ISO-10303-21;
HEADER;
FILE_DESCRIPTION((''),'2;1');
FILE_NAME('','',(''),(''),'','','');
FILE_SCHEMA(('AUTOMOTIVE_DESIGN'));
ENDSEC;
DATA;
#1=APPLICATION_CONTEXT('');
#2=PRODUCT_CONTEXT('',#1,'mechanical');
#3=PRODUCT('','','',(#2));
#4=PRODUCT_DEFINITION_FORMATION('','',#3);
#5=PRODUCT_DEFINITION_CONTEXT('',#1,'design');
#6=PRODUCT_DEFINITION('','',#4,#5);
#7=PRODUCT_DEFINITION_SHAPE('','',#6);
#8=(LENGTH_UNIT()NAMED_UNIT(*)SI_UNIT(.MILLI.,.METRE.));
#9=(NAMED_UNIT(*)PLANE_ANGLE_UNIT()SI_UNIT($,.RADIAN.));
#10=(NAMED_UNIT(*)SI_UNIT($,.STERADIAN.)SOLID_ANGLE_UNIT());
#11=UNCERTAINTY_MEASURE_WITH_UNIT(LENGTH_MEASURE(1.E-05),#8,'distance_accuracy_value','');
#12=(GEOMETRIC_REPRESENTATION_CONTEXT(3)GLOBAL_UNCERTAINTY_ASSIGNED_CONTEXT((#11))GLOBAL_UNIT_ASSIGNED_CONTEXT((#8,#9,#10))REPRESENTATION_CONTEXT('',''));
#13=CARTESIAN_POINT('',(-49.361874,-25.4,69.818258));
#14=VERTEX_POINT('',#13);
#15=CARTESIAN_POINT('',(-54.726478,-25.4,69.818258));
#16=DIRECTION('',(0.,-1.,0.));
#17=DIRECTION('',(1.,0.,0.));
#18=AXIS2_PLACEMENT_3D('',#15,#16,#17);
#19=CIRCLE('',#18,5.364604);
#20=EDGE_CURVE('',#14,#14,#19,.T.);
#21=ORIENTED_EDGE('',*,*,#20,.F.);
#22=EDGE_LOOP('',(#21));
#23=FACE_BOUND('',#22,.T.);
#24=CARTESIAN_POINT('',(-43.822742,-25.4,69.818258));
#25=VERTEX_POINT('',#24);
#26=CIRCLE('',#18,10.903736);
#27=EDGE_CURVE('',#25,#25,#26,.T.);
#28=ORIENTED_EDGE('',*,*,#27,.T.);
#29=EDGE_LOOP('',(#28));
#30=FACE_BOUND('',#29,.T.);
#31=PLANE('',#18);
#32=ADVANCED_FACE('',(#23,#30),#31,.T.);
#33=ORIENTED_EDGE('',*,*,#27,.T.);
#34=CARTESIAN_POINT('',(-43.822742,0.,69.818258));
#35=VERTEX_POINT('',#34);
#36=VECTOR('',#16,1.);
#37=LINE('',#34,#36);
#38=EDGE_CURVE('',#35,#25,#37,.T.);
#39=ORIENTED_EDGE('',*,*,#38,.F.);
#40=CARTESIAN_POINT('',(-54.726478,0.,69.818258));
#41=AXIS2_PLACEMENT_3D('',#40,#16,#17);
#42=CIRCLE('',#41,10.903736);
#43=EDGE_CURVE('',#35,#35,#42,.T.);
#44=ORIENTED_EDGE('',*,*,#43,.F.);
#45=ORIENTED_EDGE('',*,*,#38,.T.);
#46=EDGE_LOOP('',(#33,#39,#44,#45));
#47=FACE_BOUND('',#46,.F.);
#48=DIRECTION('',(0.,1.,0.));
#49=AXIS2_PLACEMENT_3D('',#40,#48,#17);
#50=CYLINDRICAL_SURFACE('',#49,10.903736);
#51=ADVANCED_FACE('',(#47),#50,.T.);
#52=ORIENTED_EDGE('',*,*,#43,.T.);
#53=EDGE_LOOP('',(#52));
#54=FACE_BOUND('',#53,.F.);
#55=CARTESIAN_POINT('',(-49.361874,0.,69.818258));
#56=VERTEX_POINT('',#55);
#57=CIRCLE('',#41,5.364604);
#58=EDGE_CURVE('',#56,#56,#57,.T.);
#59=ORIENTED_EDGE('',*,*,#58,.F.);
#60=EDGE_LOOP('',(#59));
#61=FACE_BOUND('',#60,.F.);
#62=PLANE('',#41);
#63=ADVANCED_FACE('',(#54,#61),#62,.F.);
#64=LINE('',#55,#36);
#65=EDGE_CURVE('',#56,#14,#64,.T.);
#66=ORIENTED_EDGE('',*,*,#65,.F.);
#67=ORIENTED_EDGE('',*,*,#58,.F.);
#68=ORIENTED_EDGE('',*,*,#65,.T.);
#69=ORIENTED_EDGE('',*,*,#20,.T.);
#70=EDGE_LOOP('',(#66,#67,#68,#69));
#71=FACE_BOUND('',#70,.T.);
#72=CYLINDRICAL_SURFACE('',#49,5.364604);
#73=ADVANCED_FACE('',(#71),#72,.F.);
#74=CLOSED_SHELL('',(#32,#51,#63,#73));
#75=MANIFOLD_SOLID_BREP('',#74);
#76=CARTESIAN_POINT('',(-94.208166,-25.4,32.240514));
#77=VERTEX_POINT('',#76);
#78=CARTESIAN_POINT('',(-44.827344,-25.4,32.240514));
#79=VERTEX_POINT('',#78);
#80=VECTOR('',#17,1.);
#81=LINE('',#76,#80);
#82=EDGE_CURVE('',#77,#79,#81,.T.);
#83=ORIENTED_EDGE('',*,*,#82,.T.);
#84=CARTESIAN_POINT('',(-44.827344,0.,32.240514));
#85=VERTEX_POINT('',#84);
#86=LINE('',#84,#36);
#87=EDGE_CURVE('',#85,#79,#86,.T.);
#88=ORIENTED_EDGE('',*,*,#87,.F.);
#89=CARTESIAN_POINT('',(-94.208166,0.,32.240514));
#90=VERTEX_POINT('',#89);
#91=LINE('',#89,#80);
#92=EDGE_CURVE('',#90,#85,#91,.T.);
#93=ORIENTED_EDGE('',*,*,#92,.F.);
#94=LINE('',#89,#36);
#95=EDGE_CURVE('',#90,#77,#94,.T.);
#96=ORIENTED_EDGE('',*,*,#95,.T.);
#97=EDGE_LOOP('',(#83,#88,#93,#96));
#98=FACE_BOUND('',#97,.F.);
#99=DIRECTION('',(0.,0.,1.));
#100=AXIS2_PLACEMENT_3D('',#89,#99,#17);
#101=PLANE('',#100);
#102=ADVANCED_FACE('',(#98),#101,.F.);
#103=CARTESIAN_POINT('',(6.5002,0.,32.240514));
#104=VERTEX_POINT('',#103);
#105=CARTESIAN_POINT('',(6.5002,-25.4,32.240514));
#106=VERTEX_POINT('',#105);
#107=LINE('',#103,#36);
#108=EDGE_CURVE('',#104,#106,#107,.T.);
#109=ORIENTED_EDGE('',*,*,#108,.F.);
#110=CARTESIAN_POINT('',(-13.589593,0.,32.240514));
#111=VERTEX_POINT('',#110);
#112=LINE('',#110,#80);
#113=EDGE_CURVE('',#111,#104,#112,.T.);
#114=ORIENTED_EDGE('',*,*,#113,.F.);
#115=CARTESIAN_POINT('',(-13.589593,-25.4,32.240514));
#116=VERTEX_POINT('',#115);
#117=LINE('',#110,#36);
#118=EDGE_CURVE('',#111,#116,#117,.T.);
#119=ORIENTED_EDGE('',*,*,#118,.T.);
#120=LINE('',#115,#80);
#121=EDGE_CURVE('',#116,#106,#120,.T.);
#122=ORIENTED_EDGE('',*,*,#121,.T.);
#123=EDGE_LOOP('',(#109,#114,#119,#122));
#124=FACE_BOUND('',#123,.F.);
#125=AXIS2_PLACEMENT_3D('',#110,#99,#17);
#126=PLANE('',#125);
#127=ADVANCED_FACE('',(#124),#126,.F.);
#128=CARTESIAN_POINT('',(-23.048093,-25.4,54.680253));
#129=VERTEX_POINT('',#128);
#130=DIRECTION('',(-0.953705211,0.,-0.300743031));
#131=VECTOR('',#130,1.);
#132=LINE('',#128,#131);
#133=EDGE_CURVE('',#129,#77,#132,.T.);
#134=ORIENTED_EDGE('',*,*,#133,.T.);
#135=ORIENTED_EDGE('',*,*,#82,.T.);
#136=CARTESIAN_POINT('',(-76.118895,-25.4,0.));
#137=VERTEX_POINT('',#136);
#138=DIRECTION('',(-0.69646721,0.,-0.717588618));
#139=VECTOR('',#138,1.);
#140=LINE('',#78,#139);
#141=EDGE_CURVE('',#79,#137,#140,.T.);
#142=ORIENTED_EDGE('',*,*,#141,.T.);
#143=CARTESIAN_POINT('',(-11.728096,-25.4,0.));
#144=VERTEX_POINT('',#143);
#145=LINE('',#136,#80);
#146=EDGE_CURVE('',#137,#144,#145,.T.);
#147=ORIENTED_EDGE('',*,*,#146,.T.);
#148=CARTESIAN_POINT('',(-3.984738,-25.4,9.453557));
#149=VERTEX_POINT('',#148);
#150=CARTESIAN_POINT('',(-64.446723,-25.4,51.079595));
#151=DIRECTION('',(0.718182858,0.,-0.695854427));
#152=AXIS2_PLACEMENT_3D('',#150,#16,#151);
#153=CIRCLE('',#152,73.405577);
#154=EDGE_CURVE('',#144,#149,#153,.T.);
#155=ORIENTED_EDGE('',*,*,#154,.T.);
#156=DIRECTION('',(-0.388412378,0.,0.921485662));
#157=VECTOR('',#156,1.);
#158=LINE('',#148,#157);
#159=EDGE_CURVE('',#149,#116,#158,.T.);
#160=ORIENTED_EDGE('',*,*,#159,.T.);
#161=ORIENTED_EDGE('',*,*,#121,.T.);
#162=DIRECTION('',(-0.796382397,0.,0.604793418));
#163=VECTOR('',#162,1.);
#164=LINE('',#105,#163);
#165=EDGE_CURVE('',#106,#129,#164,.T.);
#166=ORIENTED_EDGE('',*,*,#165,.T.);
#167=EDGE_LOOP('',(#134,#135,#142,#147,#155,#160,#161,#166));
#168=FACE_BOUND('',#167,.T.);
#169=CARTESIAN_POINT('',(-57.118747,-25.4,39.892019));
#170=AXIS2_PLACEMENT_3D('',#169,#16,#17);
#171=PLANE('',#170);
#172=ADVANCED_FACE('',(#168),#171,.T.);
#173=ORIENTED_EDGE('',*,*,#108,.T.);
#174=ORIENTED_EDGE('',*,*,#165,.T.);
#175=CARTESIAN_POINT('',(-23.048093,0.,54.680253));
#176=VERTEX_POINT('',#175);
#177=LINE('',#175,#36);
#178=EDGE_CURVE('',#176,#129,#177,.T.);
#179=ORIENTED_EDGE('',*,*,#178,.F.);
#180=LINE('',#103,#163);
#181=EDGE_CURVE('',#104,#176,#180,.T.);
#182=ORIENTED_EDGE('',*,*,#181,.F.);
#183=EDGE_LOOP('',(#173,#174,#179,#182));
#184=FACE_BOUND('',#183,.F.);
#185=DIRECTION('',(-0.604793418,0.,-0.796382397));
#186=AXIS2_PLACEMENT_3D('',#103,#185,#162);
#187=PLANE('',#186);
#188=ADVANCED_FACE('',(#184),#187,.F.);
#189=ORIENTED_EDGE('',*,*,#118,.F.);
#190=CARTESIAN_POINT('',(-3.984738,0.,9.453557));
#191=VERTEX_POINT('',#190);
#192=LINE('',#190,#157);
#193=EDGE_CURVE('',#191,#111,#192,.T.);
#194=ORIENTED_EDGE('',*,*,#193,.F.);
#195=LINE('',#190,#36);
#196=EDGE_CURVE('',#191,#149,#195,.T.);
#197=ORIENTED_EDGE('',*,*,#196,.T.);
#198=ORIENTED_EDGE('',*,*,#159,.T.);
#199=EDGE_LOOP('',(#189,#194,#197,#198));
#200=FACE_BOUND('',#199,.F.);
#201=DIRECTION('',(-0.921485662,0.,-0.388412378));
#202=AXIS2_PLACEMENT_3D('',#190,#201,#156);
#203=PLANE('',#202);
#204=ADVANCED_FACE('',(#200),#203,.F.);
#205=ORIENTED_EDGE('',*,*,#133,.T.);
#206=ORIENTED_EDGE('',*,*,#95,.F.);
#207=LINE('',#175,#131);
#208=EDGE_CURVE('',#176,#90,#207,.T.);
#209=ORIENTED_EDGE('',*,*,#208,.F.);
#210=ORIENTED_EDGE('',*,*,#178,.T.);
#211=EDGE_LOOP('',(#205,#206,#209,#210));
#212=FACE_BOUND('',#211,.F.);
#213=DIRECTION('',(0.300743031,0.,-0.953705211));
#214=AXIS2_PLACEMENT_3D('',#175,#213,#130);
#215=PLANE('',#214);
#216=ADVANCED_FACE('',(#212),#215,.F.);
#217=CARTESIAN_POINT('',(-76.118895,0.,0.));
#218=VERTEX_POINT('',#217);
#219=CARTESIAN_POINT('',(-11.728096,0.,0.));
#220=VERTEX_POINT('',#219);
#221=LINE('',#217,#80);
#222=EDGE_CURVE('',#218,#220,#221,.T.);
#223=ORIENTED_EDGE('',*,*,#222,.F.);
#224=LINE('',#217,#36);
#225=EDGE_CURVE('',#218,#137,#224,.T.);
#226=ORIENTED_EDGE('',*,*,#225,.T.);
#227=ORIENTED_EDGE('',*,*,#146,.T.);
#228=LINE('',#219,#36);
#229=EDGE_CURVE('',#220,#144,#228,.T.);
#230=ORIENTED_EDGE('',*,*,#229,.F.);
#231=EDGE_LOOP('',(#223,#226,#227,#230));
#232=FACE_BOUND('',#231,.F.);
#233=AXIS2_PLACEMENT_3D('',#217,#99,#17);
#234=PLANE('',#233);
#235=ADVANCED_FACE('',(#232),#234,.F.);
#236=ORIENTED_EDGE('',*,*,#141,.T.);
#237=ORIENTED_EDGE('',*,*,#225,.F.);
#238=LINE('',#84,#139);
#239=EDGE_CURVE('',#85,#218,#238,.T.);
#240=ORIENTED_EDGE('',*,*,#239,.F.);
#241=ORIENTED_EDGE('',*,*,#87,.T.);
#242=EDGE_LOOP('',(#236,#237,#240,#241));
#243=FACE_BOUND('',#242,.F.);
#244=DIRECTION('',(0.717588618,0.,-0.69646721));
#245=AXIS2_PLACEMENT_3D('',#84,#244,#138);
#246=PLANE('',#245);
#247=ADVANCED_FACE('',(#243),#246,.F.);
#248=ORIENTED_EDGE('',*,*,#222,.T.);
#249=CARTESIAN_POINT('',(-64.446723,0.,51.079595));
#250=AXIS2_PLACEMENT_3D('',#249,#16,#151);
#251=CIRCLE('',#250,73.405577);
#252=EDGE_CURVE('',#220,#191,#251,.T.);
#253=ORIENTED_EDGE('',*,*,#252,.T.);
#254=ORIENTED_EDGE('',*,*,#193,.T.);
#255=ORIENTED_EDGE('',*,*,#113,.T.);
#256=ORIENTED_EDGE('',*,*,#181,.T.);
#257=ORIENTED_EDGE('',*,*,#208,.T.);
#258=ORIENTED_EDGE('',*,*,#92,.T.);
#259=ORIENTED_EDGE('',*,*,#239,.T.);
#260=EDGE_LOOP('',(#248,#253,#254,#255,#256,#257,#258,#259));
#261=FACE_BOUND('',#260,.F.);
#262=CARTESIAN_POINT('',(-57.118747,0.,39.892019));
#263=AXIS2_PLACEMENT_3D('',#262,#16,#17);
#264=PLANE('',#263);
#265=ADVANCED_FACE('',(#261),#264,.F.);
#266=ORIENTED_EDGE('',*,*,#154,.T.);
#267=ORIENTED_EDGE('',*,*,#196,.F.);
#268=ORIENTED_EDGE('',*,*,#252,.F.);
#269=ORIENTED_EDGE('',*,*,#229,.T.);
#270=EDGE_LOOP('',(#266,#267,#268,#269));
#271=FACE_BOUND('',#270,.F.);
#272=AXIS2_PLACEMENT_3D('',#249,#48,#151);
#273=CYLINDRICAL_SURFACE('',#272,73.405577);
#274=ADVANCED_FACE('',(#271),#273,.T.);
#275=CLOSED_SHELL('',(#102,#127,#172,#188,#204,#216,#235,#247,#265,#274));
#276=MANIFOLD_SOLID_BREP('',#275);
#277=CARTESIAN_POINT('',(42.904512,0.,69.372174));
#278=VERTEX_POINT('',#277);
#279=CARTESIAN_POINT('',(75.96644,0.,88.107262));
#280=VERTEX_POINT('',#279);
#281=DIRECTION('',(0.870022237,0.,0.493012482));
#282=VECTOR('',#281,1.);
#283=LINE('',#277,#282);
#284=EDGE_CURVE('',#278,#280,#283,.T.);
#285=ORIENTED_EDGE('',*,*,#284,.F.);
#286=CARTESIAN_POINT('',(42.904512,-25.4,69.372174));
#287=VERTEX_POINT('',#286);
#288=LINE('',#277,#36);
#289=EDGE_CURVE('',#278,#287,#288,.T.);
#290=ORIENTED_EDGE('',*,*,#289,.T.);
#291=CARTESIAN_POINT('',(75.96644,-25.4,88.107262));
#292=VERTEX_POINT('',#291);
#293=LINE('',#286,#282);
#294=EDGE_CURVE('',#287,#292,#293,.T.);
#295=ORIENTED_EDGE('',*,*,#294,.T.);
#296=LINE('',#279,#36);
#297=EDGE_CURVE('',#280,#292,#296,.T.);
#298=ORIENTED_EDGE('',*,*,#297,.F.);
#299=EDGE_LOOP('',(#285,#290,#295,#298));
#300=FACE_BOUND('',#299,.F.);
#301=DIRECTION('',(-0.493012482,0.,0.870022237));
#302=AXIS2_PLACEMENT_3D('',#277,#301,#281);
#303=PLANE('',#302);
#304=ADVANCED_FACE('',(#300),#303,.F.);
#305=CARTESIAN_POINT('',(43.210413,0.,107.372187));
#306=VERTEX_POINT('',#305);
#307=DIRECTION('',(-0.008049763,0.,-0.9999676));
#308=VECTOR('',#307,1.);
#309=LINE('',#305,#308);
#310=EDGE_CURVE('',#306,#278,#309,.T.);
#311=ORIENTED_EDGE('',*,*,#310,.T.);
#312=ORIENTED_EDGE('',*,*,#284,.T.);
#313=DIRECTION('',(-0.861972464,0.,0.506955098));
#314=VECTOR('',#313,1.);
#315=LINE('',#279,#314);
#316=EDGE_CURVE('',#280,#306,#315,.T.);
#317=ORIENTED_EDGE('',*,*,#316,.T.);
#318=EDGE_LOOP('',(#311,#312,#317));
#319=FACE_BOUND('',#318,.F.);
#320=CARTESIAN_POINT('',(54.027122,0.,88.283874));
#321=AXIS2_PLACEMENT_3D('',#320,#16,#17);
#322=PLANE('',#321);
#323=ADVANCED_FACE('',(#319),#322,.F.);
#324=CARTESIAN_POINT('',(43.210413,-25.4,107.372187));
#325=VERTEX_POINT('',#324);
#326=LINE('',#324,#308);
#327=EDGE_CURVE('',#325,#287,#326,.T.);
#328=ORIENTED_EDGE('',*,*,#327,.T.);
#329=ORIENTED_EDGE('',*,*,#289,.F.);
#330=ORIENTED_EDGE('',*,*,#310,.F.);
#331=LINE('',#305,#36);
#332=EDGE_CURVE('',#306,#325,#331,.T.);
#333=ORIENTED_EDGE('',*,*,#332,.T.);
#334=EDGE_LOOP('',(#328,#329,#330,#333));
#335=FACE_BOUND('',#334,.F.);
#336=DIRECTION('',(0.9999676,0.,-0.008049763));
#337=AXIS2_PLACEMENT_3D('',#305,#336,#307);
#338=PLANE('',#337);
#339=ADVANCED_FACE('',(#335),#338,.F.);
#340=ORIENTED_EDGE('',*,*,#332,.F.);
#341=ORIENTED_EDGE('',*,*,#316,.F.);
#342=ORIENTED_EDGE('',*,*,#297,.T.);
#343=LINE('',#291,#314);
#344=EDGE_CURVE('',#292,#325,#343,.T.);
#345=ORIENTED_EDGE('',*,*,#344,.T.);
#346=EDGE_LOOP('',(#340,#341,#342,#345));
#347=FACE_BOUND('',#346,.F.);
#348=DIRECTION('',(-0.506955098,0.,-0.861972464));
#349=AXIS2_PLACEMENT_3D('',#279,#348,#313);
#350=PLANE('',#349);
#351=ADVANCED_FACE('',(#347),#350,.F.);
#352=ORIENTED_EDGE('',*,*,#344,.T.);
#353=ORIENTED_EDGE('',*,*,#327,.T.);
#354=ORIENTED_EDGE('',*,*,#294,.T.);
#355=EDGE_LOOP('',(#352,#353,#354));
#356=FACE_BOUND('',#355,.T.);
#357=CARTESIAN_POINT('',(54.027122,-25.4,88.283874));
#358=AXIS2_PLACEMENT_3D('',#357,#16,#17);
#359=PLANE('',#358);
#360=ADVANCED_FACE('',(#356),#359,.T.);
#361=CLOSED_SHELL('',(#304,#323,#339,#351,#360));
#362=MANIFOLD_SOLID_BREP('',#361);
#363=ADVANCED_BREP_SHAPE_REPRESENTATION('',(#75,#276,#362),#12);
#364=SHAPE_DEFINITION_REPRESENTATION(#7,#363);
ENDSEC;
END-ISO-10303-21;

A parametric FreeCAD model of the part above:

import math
import FreeCAD as App
import Part
import Sketcher

V = App.Vector
Q = App.Units.Quantity

doc = App.newDocument("Part")
params = doc.addObject("Spreadsheet::Sheet", "Params")
for row, (alias, value) in enumerate([
    ("pad1_length", "1 in"),
], start=1):
    params.set(f"A{row}", alias)
    params.set(f"B{row}", "=" + value)
    params.setAlias(f"B{row}", alias)

body = doc.addObject("PartDesign::Body", "Body")
body.AllowCompound = True

# Sketch on XZ plane
sketch1 = body.newObject("Sketcher::SketchObject", "Sketch")
sketch1.AttachmentSupport = (doc.getObject("XZ_Plane"), [""])
sketch1.MapMode = "FlatFace"
sketch1.addGeometry(Part.LineSegment(V(-23, 55, 0), V(-94, 32, 0)), False)
sketch1.addGeometry(Part.LineSegment(V(-94, 32, 0), V(-45, 32, 0)), False)
sketch1.addGeometry(Part.LineSegment(V(-45, 32, 0), V(-76, 0, 0)), False)
sketch1.addGeometry(Part.LineSegment(V(-76, 0, 0), V(-12, 0, 0)), False)
sketch1.addGeometry(Part.ArcOfCircle(Part.Circle(V(-64, 51, 0), V(0, 0, 1), 73), math.radians(-44.1), math.radians(-34.55)), False)
sketch1.addGeometry(Part.LineSegment(V(-4, 9, 0), V(-14, 32, 0)), False)
sketch1.addGeometry(Part.LineSegment(V(-14, 32, 0), V(7, 32, 0)), False)
sketch1.addGeometry(Part.LineSegment(V(7, 32, 0), V(-23, 55, 0)), False)
sketch1.addGeometry(Part.Circle(V(-55, 70, 0), V(0, 0, 1), 11), False)
sketch1.addGeometry(Part.Circle(V(-55, 70, 0), V(0, 0, 1), 5), False)
sketch1.addGeometry(Part.LineSegment(V(43, 69, 0), V(76, 88, 0)), False)
sketch1.addGeometry(Part.LineSegment(V(76, 88, 0), V(43, 107, 0)), False)
sketch1.addGeometry(Part.LineSegment(V(43, 107, 0), V(43, 69, 0)), False)
sketch1.addConstraint(Sketcher.Constraint("Coincident", 0, 2, 1, 1))
sketch1.addConstraint(Sketcher.Constraint("Coincident", 1, 2, 2, 1))
sketch1.addConstraint(Sketcher.Constraint("Coincident", 2, 2, 3, 1))
sketch1.addConstraint(Sketcher.Constraint("Coincident", 3, 2, 4, 1))
sketch1.addConstraint(Sketcher.Constraint("Coincident", 4, 2, 5, 1))
sketch1.addConstraint(Sketcher.Constraint("Coincident", 5, 2, 6, 1))
sketch1.addConstraint(Sketcher.Constraint("Coincident", 6, 2, 7, 1))
sketch1.addConstraint(Sketcher.Constraint("Coincident", 7, 2, 0, 1))
sketch1.addConstraint(Sketcher.Constraint("Coincident", 10, 2, 11, 1))
sketch1.addConstraint(Sketcher.Constraint("Coincident", 11, 2, 12, 1))
sketch1.addConstraint(Sketcher.Constraint("Coincident", 12, 2, 10, 1))
sketch1.addConstraint(Sketcher.Constraint("Horizontal", 1))
sketch1.addConstraint(Sketcher.Constraint("Horizontal", 3))
sketch1.addConstraint(Sketcher.Constraint("Horizontal", 6))
sketch1.addConstraint(Sketcher.Constraint("Coincident", 9, 3, 8, 3))
sketch1.addConstraint(Sketcher.Constraint("PointOnObject", 2, 2, -1))
sketch1.addConstraint(Sketcher.Constraint("Horizontal", 1, 2, 5, 2))
sketch1.addConstraint(Sketcher.Constraint("Equal", 10, 11))
sketch1.addConstraint(Sketcher.Constraint("Equal", 11, 12))
sketch1.addConstraint(Sketcher.Constraint("Diameter", 8, Q("21.807472 mm")))
sketch1.addConstraint(Sketcher.Constraint("Diameter", 9, Q("10.729208 mm")))
sketch1.addConstraint(Sketcher.Constraint("DistanceX", 3, 1, 3, 2, Q("64.390799 mm")))
sketch1.addConstraint(Sketcher.Constraint("Radius", 4, Q("73.405577 mm")))
sketch1.addConstraint(Sketcher.Constraint("Distance", 5, Q("24.728499 mm")))
sketch1.addConstraint(Sketcher.Constraint("DistanceX", -1, 1, 6, 2, Q("6.5002 mm")))
sketch1.addConstraint(Sketcher.Constraint("DistanceY", 4, 2, 8, 3, Q("60.364701 mm")))
sketch1.addConstraint(Sketcher.Constraint("DistanceX", 7, 2, 5, 2, Q("9.4585 mm")))
sketch1.addConstraint(Sketcher.Constraint("DistanceX", 12, 2, 11, 2, Q("0.305901 mm")))
sketch1.addConstraint(Sketcher.Constraint("DistanceX", 1, 1, 1, 2, Q("49.380822 mm")))
sketch1.addConstraint(Sketcher.Constraint("DistanceX", 6, 1, 6, 2, Q("20.089793 mm")))
sketch1.addConstraint(Sketcher.Constraint("DistanceY", -1, 1, 8, 3, Q("69.818258 mm")))
sketch1.addConstraint(Sketcher.Constraint("DistanceX", 4, 2, -1, 1, Q("3.984738 mm")))
sketch1.addConstraint(Sketcher.Constraint("DistanceX", -1, 1, 10, 2, Q("75.96644 mm")))
sketch1.addConstraint(Sketcher.Constraint("DistanceX", -1, 1, 12, 2, Q("42.904512 mm")))
sketch1.addConstraint(Sketcher.Constraint("DistanceY", 0, 2, 4, 3, Q("18.839081 mm")))
sketch1.addConstraint(Sketcher.Constraint("DistanceX", 0, 2, 8, 3, Q("39.481688 mm")))
sketch1.addConstraint(Sketcher.Constraint("DistanceX", 4, 3, 1, 2, Q("19.619379 mm")))
sketch1.addConstraint(Sketcher.Constraint("DistanceY", 5, 2, 7, 2, Q("22.439739 mm")))
sketch1.addConstraint(Sketcher.Constraint("DistanceY", 6, 2, 10, 2, Q("55.866748 mm")))
pad1 = body.newObject("PartDesign::Pad", "Pad")
pad1.Profile = sketch1
pad1.setExpression("Length", "Params.pad1_length")

doc.recompute()
